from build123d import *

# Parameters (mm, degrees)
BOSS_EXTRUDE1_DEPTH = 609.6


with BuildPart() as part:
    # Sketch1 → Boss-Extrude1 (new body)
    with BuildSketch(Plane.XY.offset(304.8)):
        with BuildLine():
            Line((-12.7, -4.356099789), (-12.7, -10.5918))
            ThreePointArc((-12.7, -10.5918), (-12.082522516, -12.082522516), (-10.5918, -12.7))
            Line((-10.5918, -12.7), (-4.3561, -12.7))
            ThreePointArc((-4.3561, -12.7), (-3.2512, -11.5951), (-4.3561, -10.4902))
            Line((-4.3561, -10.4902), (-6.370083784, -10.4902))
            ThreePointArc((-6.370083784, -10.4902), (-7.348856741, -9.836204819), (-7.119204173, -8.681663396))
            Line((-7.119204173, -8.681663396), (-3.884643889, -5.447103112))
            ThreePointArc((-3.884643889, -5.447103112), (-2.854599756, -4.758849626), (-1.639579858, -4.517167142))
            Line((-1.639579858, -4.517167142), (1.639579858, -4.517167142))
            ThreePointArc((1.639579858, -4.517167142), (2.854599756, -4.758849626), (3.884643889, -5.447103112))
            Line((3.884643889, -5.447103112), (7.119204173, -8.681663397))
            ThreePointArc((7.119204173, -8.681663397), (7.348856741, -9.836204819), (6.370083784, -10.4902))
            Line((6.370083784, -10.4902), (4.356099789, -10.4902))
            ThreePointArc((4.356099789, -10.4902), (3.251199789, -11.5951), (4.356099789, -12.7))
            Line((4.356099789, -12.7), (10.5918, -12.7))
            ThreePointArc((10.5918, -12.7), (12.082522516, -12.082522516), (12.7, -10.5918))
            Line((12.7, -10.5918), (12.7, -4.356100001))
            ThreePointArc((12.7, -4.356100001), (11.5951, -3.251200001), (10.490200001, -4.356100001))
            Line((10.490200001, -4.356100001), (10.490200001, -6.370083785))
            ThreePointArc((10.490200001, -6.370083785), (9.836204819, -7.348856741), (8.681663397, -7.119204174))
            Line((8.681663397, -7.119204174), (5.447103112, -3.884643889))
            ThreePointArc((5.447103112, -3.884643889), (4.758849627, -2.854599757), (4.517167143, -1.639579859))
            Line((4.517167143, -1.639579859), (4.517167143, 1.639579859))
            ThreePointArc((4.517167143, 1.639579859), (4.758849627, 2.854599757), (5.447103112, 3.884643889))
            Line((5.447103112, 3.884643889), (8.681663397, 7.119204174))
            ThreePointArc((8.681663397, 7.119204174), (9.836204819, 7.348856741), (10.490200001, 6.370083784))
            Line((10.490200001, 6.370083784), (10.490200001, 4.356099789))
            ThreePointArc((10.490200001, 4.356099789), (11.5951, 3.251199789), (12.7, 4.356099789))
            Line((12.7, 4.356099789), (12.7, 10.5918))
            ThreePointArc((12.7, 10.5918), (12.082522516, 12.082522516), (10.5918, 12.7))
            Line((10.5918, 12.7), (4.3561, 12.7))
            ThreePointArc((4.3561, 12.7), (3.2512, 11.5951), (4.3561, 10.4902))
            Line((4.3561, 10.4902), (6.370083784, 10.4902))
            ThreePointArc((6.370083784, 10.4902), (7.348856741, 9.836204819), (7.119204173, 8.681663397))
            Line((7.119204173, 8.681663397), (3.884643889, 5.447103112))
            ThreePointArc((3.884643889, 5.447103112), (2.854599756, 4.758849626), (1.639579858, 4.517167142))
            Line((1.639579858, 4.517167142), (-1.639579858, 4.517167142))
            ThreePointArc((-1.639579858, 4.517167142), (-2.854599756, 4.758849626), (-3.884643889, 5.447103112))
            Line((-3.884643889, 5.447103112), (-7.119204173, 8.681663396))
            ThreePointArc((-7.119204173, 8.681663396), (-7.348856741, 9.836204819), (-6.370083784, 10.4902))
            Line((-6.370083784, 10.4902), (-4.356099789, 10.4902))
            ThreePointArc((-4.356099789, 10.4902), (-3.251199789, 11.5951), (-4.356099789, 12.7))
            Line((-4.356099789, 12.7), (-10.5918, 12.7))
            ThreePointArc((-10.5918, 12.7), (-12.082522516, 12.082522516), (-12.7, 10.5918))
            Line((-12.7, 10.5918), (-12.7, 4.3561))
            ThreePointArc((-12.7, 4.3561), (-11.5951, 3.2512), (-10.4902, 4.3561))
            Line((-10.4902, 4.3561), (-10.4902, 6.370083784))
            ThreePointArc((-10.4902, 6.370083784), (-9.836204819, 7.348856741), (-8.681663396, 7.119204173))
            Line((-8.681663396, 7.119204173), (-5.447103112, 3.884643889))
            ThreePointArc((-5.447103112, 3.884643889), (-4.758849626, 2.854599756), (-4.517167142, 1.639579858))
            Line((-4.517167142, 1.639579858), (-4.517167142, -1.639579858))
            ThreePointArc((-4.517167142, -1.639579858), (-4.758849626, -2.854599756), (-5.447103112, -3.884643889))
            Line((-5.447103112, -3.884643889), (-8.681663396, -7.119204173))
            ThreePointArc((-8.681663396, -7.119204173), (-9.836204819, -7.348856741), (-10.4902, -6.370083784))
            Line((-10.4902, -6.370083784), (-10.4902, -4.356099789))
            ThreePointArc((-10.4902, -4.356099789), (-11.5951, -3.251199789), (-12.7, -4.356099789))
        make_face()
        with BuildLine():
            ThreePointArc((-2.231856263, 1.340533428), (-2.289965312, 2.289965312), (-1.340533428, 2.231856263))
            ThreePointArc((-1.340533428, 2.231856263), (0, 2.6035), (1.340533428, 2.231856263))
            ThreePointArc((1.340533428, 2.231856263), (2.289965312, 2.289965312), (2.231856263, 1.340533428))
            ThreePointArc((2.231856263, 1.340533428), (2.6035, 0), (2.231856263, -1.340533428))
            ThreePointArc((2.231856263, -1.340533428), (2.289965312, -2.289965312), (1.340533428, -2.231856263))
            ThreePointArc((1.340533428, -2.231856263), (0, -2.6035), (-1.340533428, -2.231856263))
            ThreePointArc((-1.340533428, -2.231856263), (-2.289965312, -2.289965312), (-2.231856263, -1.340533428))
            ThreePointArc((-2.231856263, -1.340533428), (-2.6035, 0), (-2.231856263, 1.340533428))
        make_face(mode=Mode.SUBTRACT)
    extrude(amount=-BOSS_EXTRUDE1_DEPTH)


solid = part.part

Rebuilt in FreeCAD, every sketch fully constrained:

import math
import FreeCAD as App
import Part
import Sketcher
from FreeCAD import Vector
Q = App.Units.Quantity

doc = App.newDocument("Part")
params = doc.addObject("Spreadsheet::Sheet", "Params")
for row, (alias, value) in enumerate([
    ("sketch1_radius", "0.083 in"),
    ("sketch1_radius2", "0.125 in"),
    ("sketch1_radius3", "0.025 in"),
    ("pad1_length", "24 in"),
], start=1):
    params.set(f"A{row}", alias)
    params.set(f"B{row}", "=" + value)
    params.setAlias(f"B{row}", alias)

body = doc.addObject("PartDesign::Body", "Body")

# Sketch on XY plane
sketch1 = body.newObject("Sketcher::SketchObject", "Sketch")
sketch1.AttachmentSupport = (doc.getObject("XY_Plane"), [""])
sketch1.MapMode = "FlatFace"
sketch1.AttachmentOffset = App.Placement(Vector(0, 0, 12 * 25.4), App.Rotation())
sketch1.addGeometry(Part.LineSegment(Vector(-12.7, -4.4, 0), Vector(-12.7, -10.6, 0)), False)
sketch1.addGeometry(Part.ArcOfCircle(Part.Circle(Vector(-10.6, -10.6, 0), Vector(0, 0, 1), 2.1), math.radians(180), math.radians(270)), False)
sketch1.addGeometry(Part.LineSegment(Vector(-10.6, -12.7, 0), Vector(-4.4, -12.7, 0)), False)
sketch1.addGeometry(Part.ArcOfCircle(Part.Circle(Vector(-4.4, -11.6, 0), Vector(0, 0, 1), 1.1), math.radians(-90), math.radians(90)), False)
sketch1.addGeometry(Part.LineSegment(Vector(-4.4, -10.5, 0), Vector(-6.4, -10.5, 0)), False)
sketch1.addGeometry(Part.ArcOfCircle(Part.Circle(Vector(-6.4, -9.4, 0), Vector(0, 0, 1), 1.1), math.radians(135), math.radians(270)), False)
sketch1.addGeometry(Part.LineSegment(Vector(-7.1, -8.7, 0), Vector(-3.9, -5.4, 0)), False)
sketch1.addGeometry(Part.ArcOfCircle(Part.Circle(Vector(-1.6, -7.7, 0), Vector(0, 0, 1), 3.2), math.radians(90), math.radians(135)), False)
sketch1.addGeometry(Part.LineSegment(Vector(-1.6, -4.5, 0), Vector(1.6, -4.5, 0)), False)
sketch1.addGeometry(Part.ArcOfCircle(Part.Circle(Vector(1.6, -7.7, 0), Vector(0, 0, 1), 3.2), math.radians(45), math.radians(90)), False)
sketch1.addGeometry(Part.LineSegment(Vector(3.9, -5.4, 0), Vector(7.1, -8.7, 0)), False)
sketch1.addGeometry(Part.ArcOfCircle(Part.Circle(Vector(6.4, -9.4, 0), Vector(0, 0, 1), 1.1), math.radians(-90), math.radians(45)), False)
sketch1.addGeometry(Part.LineSegment(Vector(6.4, -10.5, 0), Vector(4.4, -10.5, 0)), False)
sketch1.addGeometry(Part.ArcOfCircle(Part.Circle(Vector(4.4, -11.6, 0), Vector(0, 0, 1), 1.1), math.radians(90), math.radians(270)), False)
sketch1.addGeometry(Part.LineSegment(Vector(4.4, -12.7, 0), Vector(10.6, -12.7, 0)), False)
sketch1.addGeometry(Part.ArcOfCircle(Part.Circle(Vector(10.6, -10.6, 0), Vector(0, 0, 1), 2.1), math.radians(-90), math.radians(0)), False)
sketch1.addGeometry(Part.LineSegment(Vector(12.7, -10.6, 0), Vector(12.7, -4.4, 0)), False)
sketch1.addGeometry(Part.ArcOfCircle(Part.Circle(Vector(11.6, -4.4, 0), Vector(0, 0, 1), 1.1), math.radians(0), math.radians(180)), False)
sketch1.addGeometry(Part.LineSegment(Vector(10.5, -4.4, 0), Vector(10.5, -6.4, 0)), False)
sketch1.addGeometry(Part.ArcOfCircle(Part.Circle(Vector(9.4, -6.4, 0), Vector(0, 0, 1), 1.1), math.radians(-135), math.radians(0)), False)
sketch1.addGeometry(Part.LineSegment(Vector(8.7, -7.1, 0), Vector(5.4, -3.9, 0)), False)
sketch1.addGeometry(Part.ArcOfCircle(Part.Circle(Vector(7.7, -1.6, 0), Vector(0, 0, 1), 3.2), math.radians(180), math.radians(225)), False)
sketch1.addGeometry(Part.LineSegment(Vector(4.5, -1.6, 0), Vector(4.5, 1.6, 0)), False)
sketch1.addGeometry(Part.ArcOfCircle(Part.Circle(Vector(7.7, 1.6, 0), Vector(0, 0, 1), 3.2), math.radians(135), math.radians(180)), False)
sketch1.addGeometry(Part.LineSegment(Vector(5.4, 3.9, 0), Vector(8.7, 7.1, 0)), False)
sketch1.addGeometry(Part.ArcOfCircle(Part.Circle(Vector(9.4, 6.4, 0), Vector(0, 0, 1), 1.1), math.radians(0), math.radians(135)), False)
sketch1.addGeometry(Part.LineSegment(Vector(10.5, 6.4, 0), Vector(10.5, 4.4, 0)), False)
sketch1.addGeometry(Part.ArcOfCircle(Part.Circle(Vector(11.6, 4.4, 0), Vector(0, 0, 1), 1.1), math.radians(180), math.radians(360)), False)
sketch1.addGeometry(Part.LineSegment(Vector(12.7, 4.4, 0), Vector(12.7, 10.6, 0)), False)
sketch1.addGeometry(Part.ArcOfCircle(Part.Circle(Vector(10.6, 10.6, 0), Vector(0, 0, 1), 2.1), math.radians(0), math.radians(90)), False)
sketch1.addGeometry(Part.LineSegment(Vector(10.6, 12.7, 0), Vector(4.4, 12.7, 0)), False)
sketch1.addGeometry(Part.ArcOfCircle(Part.Circle(Vector(4.4, 11.6, 0), Vector(0, 0, 1), 1.1), math.radians(90), math.radians(270)), False)
sketch1.addGeometry(Part.LineSegment(Vector(4.4, 10.5, 0), Vector(6.4, 10.5, 0)), False)
sketch1.addGeometry(Part.ArcOfCircle(Part.Circle(Vector(6.4, 9.4, 0), Vector(0, 0, 1), 1.1), math.radians(-45), math.radians(90)), False)
sketch1.addGeometry(Part.LineSegment(Vector(7.1, 8.7, 0), Vector(3.9, 5.4, 0)), False)
sketch1.addGeometry(Part.ArcOfCircle(Part.Circle(Vector(1.6, 7.7, 0), Vector(0, 0, 1), 3.2), math.radians(-90), math.radians(-45)), False)
sketch1.addGeometry(Part.LineSegment(Vector(1.6, 4.5, 0), Vector(-1.6, 4.5, 0)), False)
sketch1.addGeometry(Part.ArcOfCircle(Part.Circle(Vector(-1.6, 7.7, 0), Vector(0, 0, 1), 3.2), math.radians(-135), math.radians(-90)), False)
sketch1.addGeometry(Part.LineSegment(Vector(-3.9, 5.4, 0), Vector(-7.1, 8.7, 0)), False)
sketch1.addGeometry(Part.ArcOfCircle(Part.Circle(Vector(-6.4, 9.4, 0), Vector(0, 0, 1), 1.1), math.radians(90), math.radians(225)), False)
sketch1.addGeometry(Part.LineSegment(Vector(-6.4, 10.5, 0), Vector(-4.4, 10.5, 0)), False)
sketch1.addGeometry(Part.ArcOfCircle(Part.Circle(Vector(-4.4, 11.6, 0), Vector(0, 0, 1), 1.1), math.radians(-90), math.radians(90)), False)
sketch1.addGeometry(Part.LineSegment(Vector(-4.4, 12.7, 0), Vector(-10.6, 12.7, 0)), False)
sketch1.addGeometry(Part.ArcOfCircle(Part.Circle(Vector(-10.6, 10.6, 0), Vector(0, 0, 1), 2.1), math.radians(90), math.radians(180)), False)
sketch1.addGeometry(Part.LineSegment(Vector(-12.7, 10.6, 0), Vector(-12.7, 4.4, 0)), False)
sketch1.addGeometry(Part.ArcOfCircle(Part.Circle(Vector(-11.6, 4.4, 0), Vector(0, 0, 1), 1.1), math.radians(180), math.radians(360)), False)
sketch1.addGeometry(Part.LineSegment(Vector(-10.5, 4.4, 0), Vector(-10.5, 6.4, 0)), False)
sketch1.addGeometry(Part.ArcOfCircle(Part.Circle(Vector(-9.4, 6.4, 0), Vector(0, 0, 1), 1.1), math.radians(45), math.radians(180)), False)
sketch1.addGeometry(Part.LineSegment(Vector(-8.7, 7.1, 0), Vector(-5.4, 3.9, 0)), False)
sketch1.addGeometry(Part.ArcOfCircle(Part.Circle(Vector(-7.7, 1.6, 0), Vector(0, 0, 1), 3.2), math.radians(0), math.radians(45)), False)
sketch1.addGeometry(Part.LineSegment(Vector(-4.5, 1.6, 0), Vector(-4.5, -1.6, 0)), False)
sketch1.addGeometry(Part.ArcOfCircle(Part.Circle(Vector(-7.7, -1.6, 0), Vector(0, 0, 1), 3.2), math.radians(-45), math.radians(0)), False)
sketch1.addGeometry(Part.LineSegment(Vector(-5.4, -3.9, 0), Vector(-8.7, -7.1, 0)), False)
sketch1.addGeometry(Part.ArcOfCircle(Part.Circle(Vector(-9.4, -6.4, 0), Vector(0, 0, 1), 1.1), math.radians(180), math.radians(315)), False)
sketch1.addGeometry(Part.LineSegment(Vector(-10.5, -6.4, 0), Vector(-10.5, -4.4, 0)), False)
sketch1.addGeometry(Part.ArcOfCircle(Part.Circle(Vector(-11.6, -4.4, 0), Vector(0, 0, 1), 1.1), math.radians(0), math.radians(180)), False)
sketch1.addGeometry(Part.ArcOfCircle(Part.Circle(Vector(0, 0, 0), Vector(0, 0, 1), 2.6), math.radians(149), math.radians(211)), False)
sketch1.addGeometry(Part.ArcOfCircle(Part.Circle(Vector(-1.8, 1.8, 0), Vector(0, 0, 1), 0.6), math.radians(38), math.radians(232)), False)
sketch1.addGeometry(Part.ArcOfCircle(Part.Circle(Vector(0, 0, 0), Vector(0, 0, 1), 2.6), math.radians(59), math.radians(121)), False)
sketch1.addGeometry(Part.ArcOfCircle(Part.Circle(Vector(1.8, 1.8, 0), Vector(0, 0, 1), 0.6), math.radians(-52), math.radians(142)), False)
sketch1.addGeometry(Part.ArcOfCircle(Part.Circle(Vector(0, 0, 0), Vector(0, 0, 1), 2.6), math.radians(-31), math.radians(31)), False)
sketch1.addGeometry(Part.ArcOfCircle(Part.Circle(Vector(1.8, -1.8, 0), Vector(0, 0, 1), 0.6), math.radians(-142), math.radians(52)), False)
sketch1.addGeometry(Part.ArcOfCircle(Part.Circle(Vector(0, 0, 0), Vector(0, 0, 1), 2.6), math.radians(-121), math.radians(-59)), False)
sketch1.addGeometry(Part.ArcOfCircle(Part.Circle(Vector(-1.8, -1.8, 0), Vector(0, 0, 1), 0.6), math.radians(128), math.radians(322)), False)
sketch1.addConstraint(Sketcher.Constraint("Tangent", 0, 2, 1, 1))
sketch1.addConstraint(Sketcher.Constraint("Tangent", 1, 2, 2, 1))
sketch1.addConstraint(Sketcher.Constraint("Tangent", 2, 2, 3, 1))
sketch1.addConstraint(Sketcher.Constraint("Tangent", 3, 2, 4, 1))
sketch1.addConstraint(Sketcher.Constraint("Tangent", 4, 2, 5, 2))
sketch1.addConstraint(Sketcher.Constraint("Tangent", 5, 1, 6, 1))
sketch1.addConstraint(Sketcher.Constraint("Tangent", 6, 2, 7, 2))
sketch1.addConstraint(Sketcher.Constraint("Tangent", 7, 1, 8, 1))
sketch1.addConstraint(Sketcher.Constraint("Tangent", 8, 2, 9, 2))
sketch1.addConstraint(Sketcher.Constraint("Tangent", 9, 1, 10, 1))
sketch1.addConstraint(Sketcher.Constraint("Tangent", 10, 2, 11, 2))
sketch1.addConstraint(Sketcher.Constraint("Tangent", 11, 1, 12, 1))
sketch1.addConstraint(Sketcher.Constraint("Tangent", 12, 2, 13, 1))
sketch1.addConstraint(Sketcher.Constraint("Tangent", 13, 2, 14, 1))
sketch1.addConstraint(Sketcher.Constraint("Tangent", 14, 2, 15, 1))
sketch1.addConstraint(Sketcher.Constraint("Tangent", 15, 2, 16, 1))
sketch1.addConstraint(Sketcher.Constraint("Tangent", 16, 2, 17, 1))
sketch1.addConstraint(Sketcher.Constraint("Tangent", 17, 2, 18, 1))
sketch1.addConstraint(Sketcher.Constraint("Tangent", 18, 2, 19, 2))
sketch1.addConstraint(Sketcher.Constraint("Tangent", 19, 1, 20, 1))
sketch1.addConstraint(Sketcher.Constraint("Tangent", 20, 2, 21, 2))
sketch1.addConstraint(Sketcher.Constraint("Tangent", 21, 1, 22, 1))
sketch1.addConstraint(Sketcher.Constraint("Tangent", 22, 2, 23, 2))
sketch1.addConstraint(Sketcher.Constraint("Tangent", 23, 1, 24, 1))
sketch1.addConstraint(Sketcher.Constraint("Tangent", 24, 2, 25, 2))
sketch1.addConstraint(Sketcher.Constraint("Tangent", 25, 1, 26, 1))
sketch1.addConstraint(Sketcher.Constraint("Tangent", 26, 2, 27, 1))
sketch1.addConstraint(Sketcher.Constraint("Tangent", 27, 2, 28, 1))
sketch1.addConstraint(Sketcher.Constraint("Tangent", 28, 2, 29, 1))
sketch1.addConstraint(Sketcher.Constraint("Tangent", 29, 2, 30, 1))
sketch1.addConstraint(Sketcher.Constraint("Tangent", 30, 2, 31, 1))
sketch1.addConstraint(Sketcher.Constraint("Tangent", 31, 2, 32, 1))
sketch1.addConstraint(Sketcher.Constraint("Tangent", 32, 2, 33, 2))
sketch1.addConstraint(Sketcher.Constraint("Tangent", 33, 1, 34, 1))
sketch1.addConstraint(Sketcher.Constraint("Tangent", 34, 2, 35, 2))
sketch1.addConstraint(Sketcher.Constraint("Tangent", 35, 1, 36, 1))
sketch1.addConstraint(Sketcher.Constraint("Tangent", 36, 2, 37, 2))
sketch1.addConstraint(Sketcher.Constraint("Tangent", 37, 1, 38, 1))
sketch1.addConstraint(Sketcher.Constraint("Tangent", 38, 2, 39, 2))
sketch1.addConstraint(Sketcher.Constraint("Tangent", 39, 1, 40, 1))
sketch1.addConstraint(Sketcher.Constraint("Tangent", 40, 2, 41, 1))
sketch1.addConstraint(Sketcher.Constraint("Tangent", 41, 2, 42, 1))
sketch1.addConstraint(Sketcher.Constraint("Tangent", 42, 2, 43, 1))
sketch1.addConstraint(Sketcher.Constraint("Tangent", 43, 2, 44, 1))
sketch1.addConstraint(Sketcher.Constraint("Tangent", 44, 2, 45, 1))
sketch1.addConstraint(Sketcher.Constraint("Tangent", 45, 2, 46, 1))
sketch1.addConstraint(Sketcher.Constraint("Tangent", 46, 2, 47, 2))
sketch1.addConstraint(Sketcher.Constraint("Tangent", 47, 1, 48, 1))
sketch1.addConstraint(Sketcher.Constraint("Tangent", 48, 2, 49, 2))
sketch1.addConstraint(Sketcher.Constraint("Tangent", 49, 1, 50, 1))
sketch1.addConstraint(Sketcher.Constraint("Tangent", 50, 2, 51, 2))
sketch1.addConstraint(Sketcher.Constraint("Tangent", 51, 1, 52, 1))
sketch1.addConstraint(Sketcher.Constraint("Tangent", 52, 2, 53, 2))
sketch1.addConstraint(Sketcher.Constraint("Tangent", 53, 1, 54, 1))
sketch1.addConstraint(Sketcher.Constraint("Tangent", 54, 2, 55, 1))
sketch1.addConstraint(Sketcher.Constraint("Tangent", 55, 2, 0, 1))
sketch1.addConstraint(Sketcher.Constraint("Coincident", 56, 1, 57, 2))
sketch1.addConstraint(Sketcher.Constraint("Coincident", 57, 1, 58, 2))
sketch1.addConstraint(Sketcher.Constraint("Coincident", 58, 1, 59, 2))
sketch1.addConstraint(Sketcher.Constraint("Coincident", 59, 1, 60, 2))
sketch1.addConstraint(Sketcher.Constraint("Coincident", 60, 1, 61, 2))
sketch1.addConstraint(Sketcher.Constraint("Coincident", 61, 1, 62, 2))
sketch1.addConstraint(Sketcher.Constraint("Coincident", 62, 1, 63, 2))
sketch1.addConstraint(Sketcher.Constraint("Coincident", 63, 1, 56, 2))
sketch1.addConstraint(Sketcher.Constraint("Vertical", 0))
sketch1.addConstraint(Sketcher.Constraint("Horizontal", 2))
sketch1.addConstraint(Sketcher.Constraint("Horizontal", 4))
sketch1.addConstraint(Sketcher.Constraint("Horizontal", 8))
sketch1.addConstraint(Sketcher.Constraint("Horizontal", 12))
sketch1.addConstraint(Sketcher.Constraint("Horizontal", 14))
sketch1.addConstraint(Sketcher.Constraint("Vertical", 16))
sketch1.addConstraint(Sketcher.Constraint("Vertical", 18))
sketch1.addConstraint(Sketcher.Constraint("Vertical", 22))
sketch1.addConstraint(Sketcher.Constraint("Vertical", 26))
sketch1.addConstraint(Sketcher.Constraint("Vertical", 28))
sketch1.addConstraint(Sketcher.Constraint("Horizontal", 30))
sketch1.addConstraint(Sketcher.Constraint("Horizontal", 32))
sketch1.addConstraint(Sketcher.Constraint("Horizontal", 36))
sketch1.addConstraint(Sketcher.Constraint("Horizontal", 40))
sketch1.addConstraint(Sketcher.Constraint("Horizontal", 42))
sketch1.addConstraint(Sketcher.Constraint("Vertical", 44))
sketch1.addConstraint(Sketcher.Constraint("Vertical", 46))
sketch1.addConstraint(Sketcher.Constraint("Vertical", 50))
sketch1.addConstraint(Sketcher.Constraint("Vertical", 54))
sketch1.addConstraint(Sketcher.Constraint("Coincident", 56, 3, -1, 1))
sketch1.addConstraint(Sketcher.Constraint("Coincident", 58, 3, -1, 1))
sketch1.addConstraint(Sketcher.Constraint("Coincident", 60, 3, -1, 1))
sketch1.addConstraint(Sketcher.Constraint("Coincident", 62, 3, -1, 1))
sketch1.addConstraint(Sketcher.Constraint("Equal", 7, 9))
sketch1.addConstraint(Sketcher.Constraint("Equal", 5, 11))
sketch1.addConstraint(Sketcher.Constraint("Equal", 3, 13))
sketch1.addConstraint(Sketcher.Constraint("Equal", 1, 15))
sketch1.addConstraint(Sketcher.Constraint("Equal", 13, 17))
sketch1.addConstraint(Sketcher.Constraint("Equal", 11, 19))
sketch1.addConstraint(Sketcher.Constraint("Equal", 9, 21))
sketch1.addConstraint(Sketcher.Constraint("Equal", 21, 23))
sketch1.addConstraint(Sketcher.Constraint("Equal", 19, 25))
sketch1.addConstraint(Sketcher.Constraint("Equal", 17, 27))
sketch1.addConstraint(Sketcher.Constraint("Equal", 15, 29))
sketch1.addConstraint(Sketcher.Constraint("Equal", 27, 31))
sketch1.addConstraint(Sketcher.Constraint("Equal", 25, 33))
sketch1.addConstraint(Sketcher.Constraint("Equal", 23, 35))
sketch1.addConstraint(Sketcher.Constraint("Equal", 35, 37))
sketch1.addConstraint(Sketcher.Constraint("Equal", 33, 39))
sketch1.addConstraint(Sketcher.Constraint("Equal", 31, 41))
sketch1.addConstraint(Sketcher.Constraint("Equal", 29, 43))
sketch1.addConstraint(Sketcher.Constraint("Equal", 41, 45))
sketch1.addConstraint(Sketcher.Constraint("Equal", 39, 47))
sketch1.addConstraint(Sketcher.Constraint("Equal", 37, 49))
sketch1.addConstraint(Sketcher.Constraint("Equal", 49, 51))
sketch1.addConstraint(Sketcher.Constraint("Equal", 47, 53))
sketch1.addConstraint(Sketcher.Constraint("Equal", 45, 55))
sketch1.addConstraint(Sketcher.Constraint("Equal", 56, 58))
sketch1.addConstraint(Sketcher.Constraint("Equal", 57, 59))
sketch1.addConstraint(Sketcher.Constraint("Equal", 58, 60))
sketch1.addConstraint(Sketcher.Constraint("Equal", 59, 61))
sketch1.addConstraint(Sketcher.Constraint("Equal", 60, 62))
sketch1.addConstraint(Sketcher.Constraint("Equal", 61, 63))
sketch1.addConstraint(Sketcher.Constraint("Symmetric", 1, 3, 29, 3, -1, 1))
sketch1.addConstraint(Sketcher.Constraint("Symmetric", 7, 3, 35, 3, -1, 1))
sketch1.addConstraint(Sketcher.Constraint("Symmetric", 11, 3, 39, 3, -1, 1))
sketch1.addConstraint(Sketcher.Constraint("Symmetric", 17, 3, 45, 3, -1, 1))
sketch1.addConstraint(Sketcher.Constraint("Symmetric", 21, 3, 49, 3, -1, 1))
sketch1.addConstraint(Sketcher.Constraint("Symmetric", 57, 3, 61, 3, -1, 1))
sketch1.addConstraint(Sketcher.Constraint("Symmetric", 59, 3, 63, 3, -1, 1))
sketch1.addConstraint(Sketcher.Constraint("Symmetric", 23, 1, 51, 1, -1, 1))
sketch1.addConstraint(Sketcher.Constraint("Symmetric", 5, 3, 11, 3, -2))
sketch1.addConstraint(Sketcher.Constraint("Symmetric", 27, 3, 45, 3, -2))
sketch1.addConstraint(Sketcher.Constraint("Symmetric", 57, 3, 59, 3, -2))
sketch1.addConstraint(Sketcher.Constraint("Symmetric", 34, 2, 37, 1, -2))
sketch1.addConstraint(Sketcher.Constraint("Symmetric", 24, 2, 47, 1, -2))
sketch1.addConstraint(Sketcher.Constraint("Perpendicular", 6, 10))
sketch1.addConstraint(Sketcher.Constraint("Parallel", 10, 20))
sketch1.addConstraint(Sketcher.Constraint("Perpendicular", 20, 24))
sketch1.addConstraint(Sketcher.Constraint("Perpendicular", 34, 38))
sketch1.addConstraint(Sketcher.Constraint("Horizontal", 17, 3, 55, 3))
sketch1.addConstraint(Sketcher.Constraint("Vertical", 13, 3, 31, 3))
sketch1.addConstraint(Sketcher.Constraint("Vertical", 3, 3, 41, 3))
sketch1.addConstraint(Sketcher.Constraint("Equal", 4, 12))
sketch1.addConstraint(Sketcher.Constraint("Equal", 42, 0))
sketch1.addConstraint(Sketcher.Constraint("Equal", 40, 18))
sketch1.addConstraint(Sketcher.Constraint("Equal", 36, 22))
sketch1.addConstraint(Sketcher.Constraint("Equal", 10, 20))
sketch1.addConstraint(Sketcher.Constraint("Radius", 1, Q("0.083 in")))
sketch1.addConstraint(Sketcher.Constraint("Radius", 7, Q("0.125 in")))
sketch1.addConstraint(Sketcher.Constraint("Radius", 57, Q("0.025 in")))
sketch1.addConstraint(Sketcher.Constraint("DistanceX", 0, 2, -1, 1, Q("0.5 in")))
sketch1.addConstraint(Sketcher.Constraint("Radius", 3, Q("0.0435 in")))
sketch1.addConstraint(Sketcher.Constraint("Radius", 56, Q("0.1025 in")))
sketch1.addConstraint(Sketcher.Constraint("DistanceX", 2, 1, 2, 2, Q("0.2455 in")))
sketch1.addConstraint(Sketcher.Constraint("Radius", 5, 1.059416))
sketch1.addConstraint(Sketcher.Constraint("DistanceX", 8, 1, 8, 2, 3.27916))
sketch1.addConstraint(Sketcher.Constraint("Distance", 6, 4.574359))
sketch1.addConstraint(Sketcher.Constraint("DistanceX", 57, 3, -1, 1, 1.840953))
sketch1.addConstraint(Sketcher.Constraint("DistanceY", -1, 1, 57, 3, 1.840953))
sketch1.setExpression("Constraints[143]", "Params.sketch1_radius")
sketch1.setExpression("Constraints[144]", "Params.sketch1_radius2")
sketch1.setExpression("Constraints[145]", "Params.sketch1_radius3")
pad1 = body.newObject("PartDesign::Pad", "Pad")
pad1.Profile = sketch1
pad1.setExpression("Length", "Params.pad1_length")
pad1.Reversed = True

doc.recompute()
